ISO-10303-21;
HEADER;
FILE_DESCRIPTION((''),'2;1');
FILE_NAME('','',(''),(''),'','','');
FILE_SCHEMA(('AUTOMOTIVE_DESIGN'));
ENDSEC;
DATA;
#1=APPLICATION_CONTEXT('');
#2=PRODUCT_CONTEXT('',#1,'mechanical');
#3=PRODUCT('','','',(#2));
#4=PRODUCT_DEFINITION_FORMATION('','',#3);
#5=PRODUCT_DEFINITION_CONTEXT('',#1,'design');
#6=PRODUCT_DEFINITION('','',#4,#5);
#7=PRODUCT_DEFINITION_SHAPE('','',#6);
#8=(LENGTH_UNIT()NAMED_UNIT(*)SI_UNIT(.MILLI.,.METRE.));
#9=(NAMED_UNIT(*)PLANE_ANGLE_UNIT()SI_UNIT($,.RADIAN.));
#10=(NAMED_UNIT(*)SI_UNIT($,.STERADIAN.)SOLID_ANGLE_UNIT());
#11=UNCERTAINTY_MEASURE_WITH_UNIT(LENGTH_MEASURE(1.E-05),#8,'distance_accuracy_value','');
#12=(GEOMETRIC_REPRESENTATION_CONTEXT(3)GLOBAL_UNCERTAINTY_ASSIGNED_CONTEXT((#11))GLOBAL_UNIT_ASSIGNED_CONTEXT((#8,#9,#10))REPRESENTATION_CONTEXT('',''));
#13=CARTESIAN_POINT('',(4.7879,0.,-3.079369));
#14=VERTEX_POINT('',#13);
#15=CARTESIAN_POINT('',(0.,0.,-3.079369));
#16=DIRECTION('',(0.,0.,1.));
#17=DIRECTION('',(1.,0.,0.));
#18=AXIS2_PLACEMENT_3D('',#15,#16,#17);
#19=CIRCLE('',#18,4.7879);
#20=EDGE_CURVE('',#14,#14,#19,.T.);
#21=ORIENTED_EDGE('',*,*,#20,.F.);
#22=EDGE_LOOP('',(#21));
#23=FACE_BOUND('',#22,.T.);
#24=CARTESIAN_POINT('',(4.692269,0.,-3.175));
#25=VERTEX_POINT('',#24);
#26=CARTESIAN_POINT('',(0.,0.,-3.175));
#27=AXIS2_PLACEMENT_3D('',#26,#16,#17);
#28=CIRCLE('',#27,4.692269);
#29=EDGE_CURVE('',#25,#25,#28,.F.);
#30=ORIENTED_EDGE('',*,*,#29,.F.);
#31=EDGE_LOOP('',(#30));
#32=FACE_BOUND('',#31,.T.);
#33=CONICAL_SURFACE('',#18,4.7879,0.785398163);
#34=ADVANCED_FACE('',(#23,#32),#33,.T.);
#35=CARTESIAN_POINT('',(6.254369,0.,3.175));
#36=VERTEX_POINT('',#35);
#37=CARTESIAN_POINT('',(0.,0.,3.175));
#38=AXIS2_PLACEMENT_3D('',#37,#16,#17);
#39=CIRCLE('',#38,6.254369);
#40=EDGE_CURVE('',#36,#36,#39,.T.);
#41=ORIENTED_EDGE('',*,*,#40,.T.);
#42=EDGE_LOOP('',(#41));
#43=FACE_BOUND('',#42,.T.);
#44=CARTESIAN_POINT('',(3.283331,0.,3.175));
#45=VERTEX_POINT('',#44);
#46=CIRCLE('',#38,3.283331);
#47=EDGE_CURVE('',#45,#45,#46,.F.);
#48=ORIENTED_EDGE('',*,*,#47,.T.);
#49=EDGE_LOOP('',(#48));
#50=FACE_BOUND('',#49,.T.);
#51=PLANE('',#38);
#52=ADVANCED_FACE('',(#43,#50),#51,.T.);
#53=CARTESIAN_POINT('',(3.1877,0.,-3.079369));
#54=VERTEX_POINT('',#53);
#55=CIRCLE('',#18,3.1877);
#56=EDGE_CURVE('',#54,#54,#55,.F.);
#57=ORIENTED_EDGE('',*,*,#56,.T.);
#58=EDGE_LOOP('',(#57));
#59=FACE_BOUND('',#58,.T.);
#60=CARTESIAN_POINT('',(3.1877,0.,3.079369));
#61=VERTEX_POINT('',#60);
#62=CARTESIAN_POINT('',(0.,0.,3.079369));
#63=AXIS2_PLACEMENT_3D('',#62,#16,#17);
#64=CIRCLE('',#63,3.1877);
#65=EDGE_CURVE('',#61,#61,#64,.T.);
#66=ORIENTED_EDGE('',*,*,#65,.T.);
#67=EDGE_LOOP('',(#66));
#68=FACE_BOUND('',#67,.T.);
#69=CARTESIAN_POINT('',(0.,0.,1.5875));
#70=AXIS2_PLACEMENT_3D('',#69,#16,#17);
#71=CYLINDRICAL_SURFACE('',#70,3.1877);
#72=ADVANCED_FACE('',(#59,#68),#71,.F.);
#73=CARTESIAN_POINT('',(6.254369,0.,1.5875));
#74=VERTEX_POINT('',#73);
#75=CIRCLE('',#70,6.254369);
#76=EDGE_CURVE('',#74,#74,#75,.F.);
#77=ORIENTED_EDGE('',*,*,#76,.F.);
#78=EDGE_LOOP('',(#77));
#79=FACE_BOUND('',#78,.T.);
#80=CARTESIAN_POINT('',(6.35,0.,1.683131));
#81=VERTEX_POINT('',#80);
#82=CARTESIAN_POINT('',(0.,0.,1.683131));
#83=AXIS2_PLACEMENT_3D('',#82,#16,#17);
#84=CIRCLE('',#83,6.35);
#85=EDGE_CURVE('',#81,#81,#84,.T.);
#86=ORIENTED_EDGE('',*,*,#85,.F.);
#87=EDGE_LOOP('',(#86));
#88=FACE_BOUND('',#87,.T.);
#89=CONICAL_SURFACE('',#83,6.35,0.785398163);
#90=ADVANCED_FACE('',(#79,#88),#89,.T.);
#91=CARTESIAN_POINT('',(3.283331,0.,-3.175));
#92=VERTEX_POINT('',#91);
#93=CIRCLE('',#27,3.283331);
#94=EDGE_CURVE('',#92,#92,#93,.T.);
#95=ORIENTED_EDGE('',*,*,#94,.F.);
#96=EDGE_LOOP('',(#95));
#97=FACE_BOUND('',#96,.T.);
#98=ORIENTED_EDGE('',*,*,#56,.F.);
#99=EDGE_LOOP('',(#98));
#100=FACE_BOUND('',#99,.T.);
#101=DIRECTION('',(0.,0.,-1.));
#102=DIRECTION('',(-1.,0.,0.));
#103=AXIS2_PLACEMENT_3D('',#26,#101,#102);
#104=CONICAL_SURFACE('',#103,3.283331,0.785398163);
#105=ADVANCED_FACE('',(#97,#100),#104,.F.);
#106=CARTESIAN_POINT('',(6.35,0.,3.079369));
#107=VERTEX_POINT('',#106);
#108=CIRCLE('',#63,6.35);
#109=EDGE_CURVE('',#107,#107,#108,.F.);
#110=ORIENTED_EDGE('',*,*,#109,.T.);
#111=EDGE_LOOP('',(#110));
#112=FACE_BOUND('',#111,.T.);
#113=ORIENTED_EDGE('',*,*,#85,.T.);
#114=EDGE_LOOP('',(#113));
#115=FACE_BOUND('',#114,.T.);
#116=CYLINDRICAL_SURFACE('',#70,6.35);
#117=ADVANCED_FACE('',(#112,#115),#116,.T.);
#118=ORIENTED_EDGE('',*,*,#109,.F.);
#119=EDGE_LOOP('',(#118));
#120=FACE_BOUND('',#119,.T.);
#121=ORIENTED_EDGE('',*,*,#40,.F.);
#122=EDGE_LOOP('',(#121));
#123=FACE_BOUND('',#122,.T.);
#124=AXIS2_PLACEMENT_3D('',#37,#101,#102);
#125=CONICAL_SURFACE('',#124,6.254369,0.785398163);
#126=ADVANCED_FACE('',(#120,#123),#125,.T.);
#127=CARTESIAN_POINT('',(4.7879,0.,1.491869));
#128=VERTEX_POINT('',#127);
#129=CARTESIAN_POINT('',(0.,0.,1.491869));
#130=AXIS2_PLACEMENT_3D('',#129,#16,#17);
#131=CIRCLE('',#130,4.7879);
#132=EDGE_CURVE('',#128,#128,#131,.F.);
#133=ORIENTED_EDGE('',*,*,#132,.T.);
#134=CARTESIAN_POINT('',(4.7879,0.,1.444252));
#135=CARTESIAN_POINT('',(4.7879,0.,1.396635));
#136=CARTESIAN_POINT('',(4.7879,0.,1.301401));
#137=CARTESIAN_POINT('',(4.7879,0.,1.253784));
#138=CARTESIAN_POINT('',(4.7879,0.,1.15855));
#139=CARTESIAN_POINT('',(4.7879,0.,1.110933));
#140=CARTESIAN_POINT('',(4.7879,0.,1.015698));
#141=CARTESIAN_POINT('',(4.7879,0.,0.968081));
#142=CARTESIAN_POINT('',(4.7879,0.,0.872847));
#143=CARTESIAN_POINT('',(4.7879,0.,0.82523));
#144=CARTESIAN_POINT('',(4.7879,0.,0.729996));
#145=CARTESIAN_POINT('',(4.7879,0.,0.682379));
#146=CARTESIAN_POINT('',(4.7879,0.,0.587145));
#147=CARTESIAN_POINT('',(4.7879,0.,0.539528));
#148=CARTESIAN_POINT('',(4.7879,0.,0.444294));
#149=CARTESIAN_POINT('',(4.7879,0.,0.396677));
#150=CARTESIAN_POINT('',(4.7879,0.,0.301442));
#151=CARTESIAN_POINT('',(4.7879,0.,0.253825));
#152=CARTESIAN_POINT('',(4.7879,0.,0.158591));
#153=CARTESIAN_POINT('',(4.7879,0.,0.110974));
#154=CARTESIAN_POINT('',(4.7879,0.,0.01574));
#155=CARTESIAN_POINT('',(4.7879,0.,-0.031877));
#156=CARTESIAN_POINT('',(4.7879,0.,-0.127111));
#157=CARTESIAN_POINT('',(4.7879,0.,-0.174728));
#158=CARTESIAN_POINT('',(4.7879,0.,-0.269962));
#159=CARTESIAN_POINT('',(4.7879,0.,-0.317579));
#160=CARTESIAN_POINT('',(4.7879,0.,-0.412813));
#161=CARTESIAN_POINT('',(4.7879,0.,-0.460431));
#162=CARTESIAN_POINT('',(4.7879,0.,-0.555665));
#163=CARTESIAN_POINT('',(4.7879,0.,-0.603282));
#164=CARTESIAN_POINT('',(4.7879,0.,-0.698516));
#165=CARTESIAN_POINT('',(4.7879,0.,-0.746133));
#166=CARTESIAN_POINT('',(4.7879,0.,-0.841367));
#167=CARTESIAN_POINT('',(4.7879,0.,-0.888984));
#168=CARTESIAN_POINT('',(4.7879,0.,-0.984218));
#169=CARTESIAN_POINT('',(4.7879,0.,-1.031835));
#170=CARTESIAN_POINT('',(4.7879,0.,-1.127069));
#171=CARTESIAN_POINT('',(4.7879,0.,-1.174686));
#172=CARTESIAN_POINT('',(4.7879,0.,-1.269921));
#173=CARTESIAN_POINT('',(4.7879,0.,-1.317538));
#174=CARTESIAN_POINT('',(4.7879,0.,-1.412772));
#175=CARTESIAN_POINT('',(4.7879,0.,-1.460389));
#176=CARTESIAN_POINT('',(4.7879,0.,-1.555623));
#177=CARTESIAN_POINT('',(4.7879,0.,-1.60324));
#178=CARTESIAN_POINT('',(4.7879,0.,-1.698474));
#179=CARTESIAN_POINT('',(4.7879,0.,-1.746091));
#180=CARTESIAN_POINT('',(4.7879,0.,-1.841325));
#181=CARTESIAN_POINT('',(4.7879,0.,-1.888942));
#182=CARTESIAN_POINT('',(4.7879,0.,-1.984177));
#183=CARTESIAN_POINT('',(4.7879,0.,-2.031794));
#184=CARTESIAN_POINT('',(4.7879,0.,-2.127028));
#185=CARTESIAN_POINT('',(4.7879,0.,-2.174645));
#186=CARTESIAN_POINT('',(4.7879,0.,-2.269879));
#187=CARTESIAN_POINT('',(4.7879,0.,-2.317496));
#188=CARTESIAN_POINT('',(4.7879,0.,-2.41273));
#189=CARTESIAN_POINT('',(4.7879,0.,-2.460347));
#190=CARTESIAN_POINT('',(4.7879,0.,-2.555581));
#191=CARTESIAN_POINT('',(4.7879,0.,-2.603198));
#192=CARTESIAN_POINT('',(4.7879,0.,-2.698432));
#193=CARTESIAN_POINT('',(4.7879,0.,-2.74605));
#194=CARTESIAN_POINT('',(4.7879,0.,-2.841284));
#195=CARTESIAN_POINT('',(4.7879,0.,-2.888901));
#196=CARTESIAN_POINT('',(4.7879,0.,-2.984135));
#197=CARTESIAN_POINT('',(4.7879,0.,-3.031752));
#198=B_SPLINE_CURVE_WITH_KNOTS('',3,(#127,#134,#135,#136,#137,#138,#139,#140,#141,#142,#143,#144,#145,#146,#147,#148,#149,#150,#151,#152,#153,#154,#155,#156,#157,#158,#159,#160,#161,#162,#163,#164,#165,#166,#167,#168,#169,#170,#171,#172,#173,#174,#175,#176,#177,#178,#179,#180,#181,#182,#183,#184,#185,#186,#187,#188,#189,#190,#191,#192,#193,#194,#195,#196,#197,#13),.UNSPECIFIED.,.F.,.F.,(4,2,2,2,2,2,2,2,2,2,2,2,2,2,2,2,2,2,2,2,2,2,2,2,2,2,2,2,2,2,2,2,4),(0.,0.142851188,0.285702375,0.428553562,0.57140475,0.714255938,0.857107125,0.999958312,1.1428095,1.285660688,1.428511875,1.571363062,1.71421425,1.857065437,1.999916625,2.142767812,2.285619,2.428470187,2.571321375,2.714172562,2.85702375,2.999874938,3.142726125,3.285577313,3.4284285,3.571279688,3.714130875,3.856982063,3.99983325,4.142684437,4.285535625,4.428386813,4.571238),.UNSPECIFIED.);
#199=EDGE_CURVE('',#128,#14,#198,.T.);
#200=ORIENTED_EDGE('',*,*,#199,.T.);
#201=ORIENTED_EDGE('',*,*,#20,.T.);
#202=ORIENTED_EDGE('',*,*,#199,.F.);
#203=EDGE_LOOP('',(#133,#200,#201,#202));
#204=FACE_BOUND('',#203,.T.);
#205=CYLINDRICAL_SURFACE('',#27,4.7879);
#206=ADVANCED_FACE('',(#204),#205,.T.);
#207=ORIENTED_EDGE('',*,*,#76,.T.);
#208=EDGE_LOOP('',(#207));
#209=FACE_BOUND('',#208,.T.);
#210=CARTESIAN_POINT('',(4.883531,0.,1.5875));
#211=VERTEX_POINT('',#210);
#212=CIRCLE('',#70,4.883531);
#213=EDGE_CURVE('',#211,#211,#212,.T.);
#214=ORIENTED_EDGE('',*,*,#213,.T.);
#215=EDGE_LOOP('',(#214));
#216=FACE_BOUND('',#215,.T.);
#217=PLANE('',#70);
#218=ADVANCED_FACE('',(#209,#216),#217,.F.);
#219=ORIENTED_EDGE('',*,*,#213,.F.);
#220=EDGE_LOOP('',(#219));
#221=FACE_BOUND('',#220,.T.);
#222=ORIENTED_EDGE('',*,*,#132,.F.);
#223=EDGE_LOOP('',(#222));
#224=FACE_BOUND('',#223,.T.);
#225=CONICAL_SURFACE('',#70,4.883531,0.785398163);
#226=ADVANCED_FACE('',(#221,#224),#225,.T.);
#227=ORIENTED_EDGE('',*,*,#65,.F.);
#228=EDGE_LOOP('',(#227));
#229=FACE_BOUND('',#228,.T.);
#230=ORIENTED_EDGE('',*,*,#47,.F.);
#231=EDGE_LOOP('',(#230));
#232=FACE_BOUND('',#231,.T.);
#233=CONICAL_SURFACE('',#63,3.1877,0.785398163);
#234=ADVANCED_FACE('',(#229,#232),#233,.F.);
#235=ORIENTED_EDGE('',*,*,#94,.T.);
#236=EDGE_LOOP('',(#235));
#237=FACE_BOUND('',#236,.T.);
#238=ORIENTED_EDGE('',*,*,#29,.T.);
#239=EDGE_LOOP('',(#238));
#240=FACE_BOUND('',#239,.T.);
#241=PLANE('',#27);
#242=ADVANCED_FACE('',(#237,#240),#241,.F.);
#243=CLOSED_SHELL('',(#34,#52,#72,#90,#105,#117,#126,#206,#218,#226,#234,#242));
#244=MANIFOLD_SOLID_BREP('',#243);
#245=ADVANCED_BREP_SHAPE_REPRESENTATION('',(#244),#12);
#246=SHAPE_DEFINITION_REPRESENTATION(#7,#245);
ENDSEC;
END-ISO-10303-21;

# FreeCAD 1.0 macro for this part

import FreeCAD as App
import Part
import Sketcher
from FreeCAD import Vector
Q = App.Units.Quantity


def edges_at(feature, points):
    """Names of the edges that pass closest to the given points."""
    edges = feature.Shape.Edges
    near = lambda p: min(range(len(edges)), key=lambda i: edges[i].distToShape(Part.Vertex(*p))[0])
    return sorted({f"Edge{near(p) + 1}" for p in points})

doc = App.newDocument("Part")
body = doc.addObject("PartDesign::Body", "Body")

# Sketch on XY plane
sketch1 = doc.addObject("Sketcher::SketchObject", "Sketch")
body.addObject(sketch1)
sketch1.AttachmentSupport = (doc.XY_Plane, [""])
sketch1.MapMode = "FlatFace"
sketch1.AttachmentOffset = App.Placement(Vector(0, 0, 0.125 * 25.4), App.Rotation())
sketch1.addGeometry([
    Part.Circle(Vector(0, 0, 0), Vector(0, 0, 1), 6.3),
    Part.Circle(Vector(0, 0, 0), Vector(0, 0, 1), 3.2),
], False)
sketch1.addConstraint([
    Sketcher.Constraint("Coincident", 0, 3, -1, 1),
    Sketcher.Constraint("Coincident", 1, 3, -1, 1),
    Sketcher.Constraint("Diameter", 0, Q("0.5 in")),
    Sketcher.Constraint("Diameter", 1, Q("0.251 in")),
])
pad1 = doc.addObject("PartDesign::Pad", "Pad")
body.addObject(pad1)
pad1.Profile = sketch1
pad1.Length = Q("0.0625 in")
pad1.Reversed = True

# Sketch on XY plane
sketch2 = doc.addObject("Sketcher::SketchObject", "Sketch001")
body.addObject(sketch2)
sketch2.AttachmentSupport = (doc.XY_Plane, [""])
sketch2.MapMode = "FlatFace"
sketch2.AttachmentOffset = App.Placement(Vector(0, 0, 0.0625 * 25.4), App.Rotation())
sketch2.addGeometry([
    Part.Circle(Vector(0, 0, 0), Vector(0, 0, 1), 4.8),
    Part.Circle(Vector(0, 0, 0), Vector(0, 0, 1), 3.2),
], False)
sketch2.addConstraint([
    Sketcher.Constraint("Coincident", 0, 3, -1, 1),
    Sketcher.Constraint("Coincident", 1, 3, -1, 1),
    Sketcher.Constraint("Diameter", 0, Q("0.377 in")),
    Sketcher.Constraint("Diameter", 1, Q("0.251 in")),
])
pad2 = doc.addObject("PartDesign::Pad", "Pad001")
body.addObject(pad2)
pad2.Profile = sketch2
pad2.Length = Q("0.1875 in")
pad2.Reversed = True
doc.recompute()

chamfer = doc.addObject("PartDesign::Chamfer", "Chamfer")
body.addObject(chamfer)
chamfer.Base = (pad2, edges_at(pad2, [
    (-3.188, 0, -3.175),
    (-4.788, 0, 1.587),
    (-6.35, 0, 3.175),
    (-6.35, 0, 1.587),
    (-3.188, 0, 3.175),
    (-4.788, 0, -3.175),
]))
chamfer.Size = 0.095631

doc.recompute()
